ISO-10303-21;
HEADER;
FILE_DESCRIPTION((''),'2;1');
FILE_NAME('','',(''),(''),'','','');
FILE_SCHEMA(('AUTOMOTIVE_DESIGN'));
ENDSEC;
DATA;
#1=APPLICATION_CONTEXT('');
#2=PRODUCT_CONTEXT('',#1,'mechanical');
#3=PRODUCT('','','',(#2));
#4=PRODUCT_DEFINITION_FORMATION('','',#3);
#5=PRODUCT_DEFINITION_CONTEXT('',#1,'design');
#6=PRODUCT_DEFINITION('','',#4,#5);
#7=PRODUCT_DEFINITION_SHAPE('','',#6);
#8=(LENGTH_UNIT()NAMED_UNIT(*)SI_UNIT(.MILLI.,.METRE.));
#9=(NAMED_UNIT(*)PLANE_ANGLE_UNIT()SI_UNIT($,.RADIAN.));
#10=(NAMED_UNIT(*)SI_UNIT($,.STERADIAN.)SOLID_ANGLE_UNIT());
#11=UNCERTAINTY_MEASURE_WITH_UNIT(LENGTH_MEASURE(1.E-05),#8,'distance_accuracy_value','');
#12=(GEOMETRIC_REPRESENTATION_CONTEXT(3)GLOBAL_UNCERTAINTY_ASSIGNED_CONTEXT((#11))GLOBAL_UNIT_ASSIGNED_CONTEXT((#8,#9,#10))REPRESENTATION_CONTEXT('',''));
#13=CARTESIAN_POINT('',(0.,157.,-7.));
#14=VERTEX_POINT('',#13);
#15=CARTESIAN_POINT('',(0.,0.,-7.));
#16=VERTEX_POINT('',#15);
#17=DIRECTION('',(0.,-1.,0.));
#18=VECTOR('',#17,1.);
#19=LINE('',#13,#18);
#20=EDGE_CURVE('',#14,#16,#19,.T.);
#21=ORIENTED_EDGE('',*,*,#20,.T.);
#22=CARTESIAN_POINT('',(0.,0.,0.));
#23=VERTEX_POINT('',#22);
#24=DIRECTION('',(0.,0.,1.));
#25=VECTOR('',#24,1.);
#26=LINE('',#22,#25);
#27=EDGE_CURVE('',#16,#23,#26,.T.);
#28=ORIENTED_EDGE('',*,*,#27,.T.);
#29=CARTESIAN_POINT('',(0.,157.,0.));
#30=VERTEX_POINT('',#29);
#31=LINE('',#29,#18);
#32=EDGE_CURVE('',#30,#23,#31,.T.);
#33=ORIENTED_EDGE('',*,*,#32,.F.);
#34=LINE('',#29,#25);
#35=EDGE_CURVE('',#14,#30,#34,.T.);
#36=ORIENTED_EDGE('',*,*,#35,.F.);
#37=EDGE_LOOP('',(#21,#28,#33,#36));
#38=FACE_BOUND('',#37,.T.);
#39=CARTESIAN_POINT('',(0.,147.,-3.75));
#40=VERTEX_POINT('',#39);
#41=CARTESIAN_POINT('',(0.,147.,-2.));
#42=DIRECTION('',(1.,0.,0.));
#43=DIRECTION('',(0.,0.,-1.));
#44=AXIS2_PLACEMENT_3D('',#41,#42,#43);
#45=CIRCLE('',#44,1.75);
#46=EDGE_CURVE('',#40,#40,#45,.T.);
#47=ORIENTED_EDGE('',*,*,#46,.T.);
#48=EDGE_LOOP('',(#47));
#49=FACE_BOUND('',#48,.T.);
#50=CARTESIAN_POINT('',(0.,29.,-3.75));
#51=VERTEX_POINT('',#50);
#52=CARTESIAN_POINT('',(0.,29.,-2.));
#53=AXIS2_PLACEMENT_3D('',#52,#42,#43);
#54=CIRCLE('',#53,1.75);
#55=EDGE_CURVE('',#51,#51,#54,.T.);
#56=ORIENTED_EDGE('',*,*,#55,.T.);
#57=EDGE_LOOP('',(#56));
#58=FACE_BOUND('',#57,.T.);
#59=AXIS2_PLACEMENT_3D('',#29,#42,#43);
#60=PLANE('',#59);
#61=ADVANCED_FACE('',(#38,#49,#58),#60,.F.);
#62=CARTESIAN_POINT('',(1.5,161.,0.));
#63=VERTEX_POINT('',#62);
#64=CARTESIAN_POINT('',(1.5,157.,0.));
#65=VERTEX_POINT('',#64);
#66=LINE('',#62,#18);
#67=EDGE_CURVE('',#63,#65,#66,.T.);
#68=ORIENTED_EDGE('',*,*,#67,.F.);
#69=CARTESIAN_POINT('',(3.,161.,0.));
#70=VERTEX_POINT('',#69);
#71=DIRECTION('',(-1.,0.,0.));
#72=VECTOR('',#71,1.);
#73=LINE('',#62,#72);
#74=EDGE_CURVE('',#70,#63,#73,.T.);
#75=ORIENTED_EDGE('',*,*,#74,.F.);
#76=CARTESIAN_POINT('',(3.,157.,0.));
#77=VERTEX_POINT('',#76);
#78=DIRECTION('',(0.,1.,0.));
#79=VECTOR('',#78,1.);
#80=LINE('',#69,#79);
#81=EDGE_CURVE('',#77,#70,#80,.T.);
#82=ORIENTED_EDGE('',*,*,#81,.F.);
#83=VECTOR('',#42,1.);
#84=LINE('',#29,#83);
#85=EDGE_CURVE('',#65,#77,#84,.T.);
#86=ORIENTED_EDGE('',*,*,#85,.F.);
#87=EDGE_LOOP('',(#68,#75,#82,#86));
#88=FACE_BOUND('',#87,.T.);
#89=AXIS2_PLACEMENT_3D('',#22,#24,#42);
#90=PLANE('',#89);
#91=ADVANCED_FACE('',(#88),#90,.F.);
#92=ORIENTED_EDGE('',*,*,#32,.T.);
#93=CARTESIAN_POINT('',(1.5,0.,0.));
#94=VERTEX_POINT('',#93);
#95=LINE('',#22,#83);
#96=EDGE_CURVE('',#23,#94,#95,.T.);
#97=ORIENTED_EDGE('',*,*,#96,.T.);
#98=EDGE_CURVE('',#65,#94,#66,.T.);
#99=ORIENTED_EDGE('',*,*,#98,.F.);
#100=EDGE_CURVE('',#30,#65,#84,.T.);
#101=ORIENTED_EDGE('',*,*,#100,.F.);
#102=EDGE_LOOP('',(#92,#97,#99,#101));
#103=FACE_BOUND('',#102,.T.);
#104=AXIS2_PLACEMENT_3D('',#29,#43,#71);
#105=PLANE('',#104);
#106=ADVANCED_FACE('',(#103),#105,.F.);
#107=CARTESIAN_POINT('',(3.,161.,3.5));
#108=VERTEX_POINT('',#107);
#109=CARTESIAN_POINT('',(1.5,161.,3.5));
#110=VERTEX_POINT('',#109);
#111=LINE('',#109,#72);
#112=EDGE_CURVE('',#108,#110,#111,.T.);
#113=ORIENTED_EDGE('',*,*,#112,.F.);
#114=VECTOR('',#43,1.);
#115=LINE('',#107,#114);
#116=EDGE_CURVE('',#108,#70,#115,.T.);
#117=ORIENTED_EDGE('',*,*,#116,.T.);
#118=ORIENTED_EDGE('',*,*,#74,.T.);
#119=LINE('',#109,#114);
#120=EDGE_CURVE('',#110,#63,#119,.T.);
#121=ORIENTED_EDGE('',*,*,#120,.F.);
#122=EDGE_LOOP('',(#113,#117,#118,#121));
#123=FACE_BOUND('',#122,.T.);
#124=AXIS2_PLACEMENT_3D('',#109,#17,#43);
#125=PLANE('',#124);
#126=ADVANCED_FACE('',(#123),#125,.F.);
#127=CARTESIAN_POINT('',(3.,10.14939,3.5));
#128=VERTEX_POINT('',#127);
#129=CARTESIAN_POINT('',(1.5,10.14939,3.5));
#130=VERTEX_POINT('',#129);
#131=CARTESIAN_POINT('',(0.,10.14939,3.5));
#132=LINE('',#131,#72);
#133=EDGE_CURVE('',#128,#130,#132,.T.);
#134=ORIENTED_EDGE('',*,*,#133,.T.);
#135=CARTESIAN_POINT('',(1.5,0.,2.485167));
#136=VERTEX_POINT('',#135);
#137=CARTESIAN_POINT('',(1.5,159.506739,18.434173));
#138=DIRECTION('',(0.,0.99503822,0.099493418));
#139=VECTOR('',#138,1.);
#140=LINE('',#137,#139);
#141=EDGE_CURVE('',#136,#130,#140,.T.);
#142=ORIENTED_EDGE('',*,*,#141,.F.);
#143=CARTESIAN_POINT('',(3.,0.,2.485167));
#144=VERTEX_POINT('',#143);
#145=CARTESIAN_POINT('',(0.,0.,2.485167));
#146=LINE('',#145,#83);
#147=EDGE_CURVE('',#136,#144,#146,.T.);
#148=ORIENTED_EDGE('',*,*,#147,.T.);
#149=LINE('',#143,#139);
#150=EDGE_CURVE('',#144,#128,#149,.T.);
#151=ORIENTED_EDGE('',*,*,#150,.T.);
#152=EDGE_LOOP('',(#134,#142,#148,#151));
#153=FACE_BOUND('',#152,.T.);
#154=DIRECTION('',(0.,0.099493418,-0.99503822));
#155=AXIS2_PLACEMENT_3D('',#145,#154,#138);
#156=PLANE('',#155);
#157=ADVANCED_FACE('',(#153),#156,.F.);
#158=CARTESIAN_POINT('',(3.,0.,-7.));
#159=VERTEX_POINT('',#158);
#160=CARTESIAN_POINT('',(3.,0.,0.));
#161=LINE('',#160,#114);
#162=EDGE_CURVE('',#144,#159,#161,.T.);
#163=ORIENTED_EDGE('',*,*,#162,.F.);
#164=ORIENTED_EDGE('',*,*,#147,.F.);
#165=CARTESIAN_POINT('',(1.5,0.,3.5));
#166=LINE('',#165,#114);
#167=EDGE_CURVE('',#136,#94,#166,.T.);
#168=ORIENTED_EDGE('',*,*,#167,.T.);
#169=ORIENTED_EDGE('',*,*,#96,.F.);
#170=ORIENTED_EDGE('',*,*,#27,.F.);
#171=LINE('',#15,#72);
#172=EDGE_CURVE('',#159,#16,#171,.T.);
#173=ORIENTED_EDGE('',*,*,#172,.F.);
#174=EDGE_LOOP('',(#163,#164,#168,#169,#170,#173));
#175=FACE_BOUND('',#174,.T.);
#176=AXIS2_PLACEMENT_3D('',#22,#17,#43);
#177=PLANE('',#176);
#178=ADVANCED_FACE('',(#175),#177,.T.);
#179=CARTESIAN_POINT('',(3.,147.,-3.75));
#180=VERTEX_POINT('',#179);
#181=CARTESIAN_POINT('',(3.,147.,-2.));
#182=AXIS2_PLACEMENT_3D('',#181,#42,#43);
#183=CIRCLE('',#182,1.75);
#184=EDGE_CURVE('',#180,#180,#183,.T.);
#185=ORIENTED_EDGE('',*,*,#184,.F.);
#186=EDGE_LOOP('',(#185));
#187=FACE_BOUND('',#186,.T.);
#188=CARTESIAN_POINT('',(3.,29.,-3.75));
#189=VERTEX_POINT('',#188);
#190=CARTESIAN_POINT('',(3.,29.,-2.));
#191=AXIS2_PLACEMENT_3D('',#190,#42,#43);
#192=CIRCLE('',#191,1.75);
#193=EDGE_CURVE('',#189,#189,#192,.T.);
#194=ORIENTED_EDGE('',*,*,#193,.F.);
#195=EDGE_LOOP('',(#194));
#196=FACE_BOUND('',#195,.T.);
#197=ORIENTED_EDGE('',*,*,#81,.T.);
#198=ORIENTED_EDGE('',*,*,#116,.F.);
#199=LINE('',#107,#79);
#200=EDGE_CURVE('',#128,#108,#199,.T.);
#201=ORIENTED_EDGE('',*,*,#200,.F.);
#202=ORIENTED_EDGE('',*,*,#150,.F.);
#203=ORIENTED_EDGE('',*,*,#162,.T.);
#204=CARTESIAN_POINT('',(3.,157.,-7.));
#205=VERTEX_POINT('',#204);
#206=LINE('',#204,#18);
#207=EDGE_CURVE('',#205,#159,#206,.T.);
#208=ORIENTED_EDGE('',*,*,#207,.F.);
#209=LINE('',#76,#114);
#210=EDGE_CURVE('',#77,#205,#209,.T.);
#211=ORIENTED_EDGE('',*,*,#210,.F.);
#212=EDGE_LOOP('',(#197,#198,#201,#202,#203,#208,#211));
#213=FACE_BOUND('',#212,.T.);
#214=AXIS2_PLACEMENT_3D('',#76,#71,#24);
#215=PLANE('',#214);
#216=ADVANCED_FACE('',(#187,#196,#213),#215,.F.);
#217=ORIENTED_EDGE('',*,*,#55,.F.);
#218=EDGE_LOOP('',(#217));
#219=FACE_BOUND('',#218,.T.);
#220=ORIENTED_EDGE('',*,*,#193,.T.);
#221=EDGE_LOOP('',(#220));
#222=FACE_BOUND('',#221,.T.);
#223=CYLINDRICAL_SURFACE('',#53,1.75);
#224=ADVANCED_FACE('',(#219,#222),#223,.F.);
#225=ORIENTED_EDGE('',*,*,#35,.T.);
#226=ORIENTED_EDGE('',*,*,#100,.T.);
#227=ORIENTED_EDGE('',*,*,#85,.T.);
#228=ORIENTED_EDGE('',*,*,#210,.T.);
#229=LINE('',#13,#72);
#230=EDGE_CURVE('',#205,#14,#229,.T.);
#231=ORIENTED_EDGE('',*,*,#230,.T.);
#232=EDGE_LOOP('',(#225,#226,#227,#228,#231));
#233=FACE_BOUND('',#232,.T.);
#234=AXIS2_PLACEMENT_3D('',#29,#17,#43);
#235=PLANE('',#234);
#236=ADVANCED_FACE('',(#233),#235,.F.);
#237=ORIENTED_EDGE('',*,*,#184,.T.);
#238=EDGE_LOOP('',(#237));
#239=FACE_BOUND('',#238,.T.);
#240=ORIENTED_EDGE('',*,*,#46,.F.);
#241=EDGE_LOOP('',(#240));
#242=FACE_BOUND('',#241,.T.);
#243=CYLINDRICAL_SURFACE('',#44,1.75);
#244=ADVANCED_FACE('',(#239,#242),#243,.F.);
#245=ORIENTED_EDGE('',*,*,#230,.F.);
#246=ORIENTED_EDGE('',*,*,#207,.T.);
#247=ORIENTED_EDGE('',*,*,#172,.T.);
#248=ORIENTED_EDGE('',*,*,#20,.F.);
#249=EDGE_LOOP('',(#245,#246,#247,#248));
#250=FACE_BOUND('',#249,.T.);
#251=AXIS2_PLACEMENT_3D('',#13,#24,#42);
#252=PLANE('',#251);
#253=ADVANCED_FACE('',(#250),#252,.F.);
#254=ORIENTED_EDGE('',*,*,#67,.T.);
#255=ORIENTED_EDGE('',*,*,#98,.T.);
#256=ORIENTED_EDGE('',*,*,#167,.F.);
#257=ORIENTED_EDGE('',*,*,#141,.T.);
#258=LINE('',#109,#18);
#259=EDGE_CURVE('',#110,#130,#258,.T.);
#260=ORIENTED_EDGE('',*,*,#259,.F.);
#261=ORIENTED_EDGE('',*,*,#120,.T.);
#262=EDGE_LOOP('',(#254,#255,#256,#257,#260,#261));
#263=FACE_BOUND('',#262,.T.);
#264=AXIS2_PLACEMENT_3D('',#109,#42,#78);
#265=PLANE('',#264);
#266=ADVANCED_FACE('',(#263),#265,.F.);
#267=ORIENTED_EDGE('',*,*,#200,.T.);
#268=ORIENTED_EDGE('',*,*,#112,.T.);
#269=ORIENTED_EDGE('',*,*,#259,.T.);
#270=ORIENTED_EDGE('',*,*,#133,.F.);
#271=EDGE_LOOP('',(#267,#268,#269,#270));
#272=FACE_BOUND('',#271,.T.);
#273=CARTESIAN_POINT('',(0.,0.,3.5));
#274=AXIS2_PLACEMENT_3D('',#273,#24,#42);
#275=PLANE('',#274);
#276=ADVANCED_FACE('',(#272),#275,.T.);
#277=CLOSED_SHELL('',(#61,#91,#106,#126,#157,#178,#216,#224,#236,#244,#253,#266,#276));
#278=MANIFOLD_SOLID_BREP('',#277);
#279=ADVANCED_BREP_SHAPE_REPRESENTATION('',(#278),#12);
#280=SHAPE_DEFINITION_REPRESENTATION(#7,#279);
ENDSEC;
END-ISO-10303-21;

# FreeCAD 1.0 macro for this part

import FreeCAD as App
import Part
import Sketcher
Q = App.Units.Quantity


def add_polygon(sketch, points):
    """Adds a closed chain of lines whose ends are joined by coincident constraints."""
    first, n = sketch.GeometryCount, len(points)
    for a, b in zip(points, points[1:] + points[:1]):
        sketch.addGeometry(Part.LineSegment(App.Vector(*a, 0), App.Vector(*b, 0)), False)
    for i in range(n):
        sketch.addConstraint(Sketcher.Constraint("Coincident", first + i, 2, first + (i + 1) % n, 1))

doc = App.newDocument("Part")
body = doc.addObject("PartDesign::Body", "Body")

# Sketch on XZ plane
sketch1 = body.newObject("Sketcher::SketchObject", "Sketch")
sketch1.AttachmentSupport = (doc.getObject("XZ_Plane"), [""])
sketch1.MapMode = "FlatFace"
add_polygon(sketch1, [(0, -7), (0, 0), (3, 0), (3, -7)])  # lines 0-3
sketch1.addConstraint([
    Sketcher.Constraint("Vertical", 0),
    Sketcher.Constraint("Horizontal", 1),
    Sketcher.Constraint("Vertical", 2),
    Sketcher.Constraint("Horizontal", 3),
    Sketcher.Constraint("Coincident", 0, 2, -1, 1),
    Sketcher.Constraint("DistanceX", 1, 1, 1, 2, Q("3 mm")),
    Sketcher.Constraint("DistanceY", 0, 1, 0, 2, Q("7 mm")),
])
pad1 = body.newObject("PartDesign::Pad", "Pad")
pad1.Profile = sketch1
pad1.Length = 157
pad1.Reversed = True

# Sketch on XY plane
sketch2 = body.newObject("Sketcher::SketchObject", "Sketch001")
sketch2.AttachmentSupport = (doc.getObject("XY_Plane"), [""])
sketch2.MapMode = "FlatFace"
add_polygon(sketch2, [(1.5, 161), (1.5, 0), (3, 0), (3, 161)])  # lines 0-3
sketch2.addConstraint([
    Sketcher.Constraint("Vertical", 0),
    Sketcher.Constraint("Horizontal", 1),
    Sketcher.Constraint("Vertical", 2),
    Sketcher.Constraint("Horizontal", 3),
    Sketcher.Constraint("PointOnObject", 0, 2, -1),
    Sketcher.Constraint("DistanceY", 0, 2, 0, 1, Q("161 mm")),
    Sketcher.Constraint("DistanceX", 1, 1, 1, 2, Q("1.5 mm")),
    Sketcher.Constraint("DistanceX", -1, 1, 1, 2, Q("3 mm")),
])
pad2 = body.newObject("PartDesign::Pad", "Pad001")
pad2.Profile = sketch2
pad2.Length = 3.5

# Sketch on YZ plane
sketch3 = body.newObject("Sketcher::SketchObject", "Sketch002")
sketch3.AttachmentSupport = (doc.getObject("YZ_Plane"), [""])
sketch3.MapMode = "FlatFace"
sketch3.AttachmentOffset = App.Placement(App.Vector(0, 0, 3), App.Rotation())
sketch3.addGeometry([
    Part.Circle(App.Vector(147, -2, 0), App.Vector(0, 0, 1), 1.8),
    Part.Circle(App.Vector(29, -2, 0), App.Vector(0, 0, 1), 1.8),
], False)
sketch3.addConstraint([
    Sketcher.Constraint("Equal", 0, 1),
    Sketcher.Constraint("Horizontal", 0, 3, 1, 3),
    Sketcher.Constraint("Diameter", 0, Q("3.5 mm")),
    Sketcher.Constraint("DistanceX", -1, 1, 0, 3, Q("147 mm")),
    Sketcher.Constraint("DistanceY", 0, 3, -1, 1, Q("2 mm")),
    Sketcher.Constraint("DistanceX", -1, 1, 1, 3, Q("29 mm")),
])
pocket1 = body.newObject("PartDesign::Pocket", "Pocket")
pocket1.Profile = sketch3
pocket1.Type = "ThroughAll"

# Sketch on YZ plane
sketch4 = body.newObject("Sketcher::SketchObject", "Sketch003")
sketch4.AttachmentSupport = (doc.getObject("YZ_Plane"), [""])
sketch4.MapMode = "FlatFace"
sketch4.AttachmentOffset = App.Placement(App.Vector(0, 0, 3), App.Rotation())
add_polygon(sketch4, [(0, 2.5), (10.1, 3.5), (0, 3.5)])  # lines 0-2
sketch4.addConstraint([
    Sketcher.Constraint("Horizontal", 1),
    Sketcher.Constraint("Vertical", 2),
    Sketcher.Constraint("PointOnObject", 1, 2, -2),
    Sketcher.Constraint("Distance", 0, Q("10.2 mm")),
    Sketcher.Constraint("DistanceY", -1, 1, 0, 2, Q("3.5 mm")),
    Sketcher.Constraint("Angle", 0, Q("5.71 deg")),
])
pocket2 = body.newObject("PartDesign::Pocket", "Pocket001")
pocket2.Profile = sketch4
pocket2.Type = "ThroughAll"

doc.recompute()
